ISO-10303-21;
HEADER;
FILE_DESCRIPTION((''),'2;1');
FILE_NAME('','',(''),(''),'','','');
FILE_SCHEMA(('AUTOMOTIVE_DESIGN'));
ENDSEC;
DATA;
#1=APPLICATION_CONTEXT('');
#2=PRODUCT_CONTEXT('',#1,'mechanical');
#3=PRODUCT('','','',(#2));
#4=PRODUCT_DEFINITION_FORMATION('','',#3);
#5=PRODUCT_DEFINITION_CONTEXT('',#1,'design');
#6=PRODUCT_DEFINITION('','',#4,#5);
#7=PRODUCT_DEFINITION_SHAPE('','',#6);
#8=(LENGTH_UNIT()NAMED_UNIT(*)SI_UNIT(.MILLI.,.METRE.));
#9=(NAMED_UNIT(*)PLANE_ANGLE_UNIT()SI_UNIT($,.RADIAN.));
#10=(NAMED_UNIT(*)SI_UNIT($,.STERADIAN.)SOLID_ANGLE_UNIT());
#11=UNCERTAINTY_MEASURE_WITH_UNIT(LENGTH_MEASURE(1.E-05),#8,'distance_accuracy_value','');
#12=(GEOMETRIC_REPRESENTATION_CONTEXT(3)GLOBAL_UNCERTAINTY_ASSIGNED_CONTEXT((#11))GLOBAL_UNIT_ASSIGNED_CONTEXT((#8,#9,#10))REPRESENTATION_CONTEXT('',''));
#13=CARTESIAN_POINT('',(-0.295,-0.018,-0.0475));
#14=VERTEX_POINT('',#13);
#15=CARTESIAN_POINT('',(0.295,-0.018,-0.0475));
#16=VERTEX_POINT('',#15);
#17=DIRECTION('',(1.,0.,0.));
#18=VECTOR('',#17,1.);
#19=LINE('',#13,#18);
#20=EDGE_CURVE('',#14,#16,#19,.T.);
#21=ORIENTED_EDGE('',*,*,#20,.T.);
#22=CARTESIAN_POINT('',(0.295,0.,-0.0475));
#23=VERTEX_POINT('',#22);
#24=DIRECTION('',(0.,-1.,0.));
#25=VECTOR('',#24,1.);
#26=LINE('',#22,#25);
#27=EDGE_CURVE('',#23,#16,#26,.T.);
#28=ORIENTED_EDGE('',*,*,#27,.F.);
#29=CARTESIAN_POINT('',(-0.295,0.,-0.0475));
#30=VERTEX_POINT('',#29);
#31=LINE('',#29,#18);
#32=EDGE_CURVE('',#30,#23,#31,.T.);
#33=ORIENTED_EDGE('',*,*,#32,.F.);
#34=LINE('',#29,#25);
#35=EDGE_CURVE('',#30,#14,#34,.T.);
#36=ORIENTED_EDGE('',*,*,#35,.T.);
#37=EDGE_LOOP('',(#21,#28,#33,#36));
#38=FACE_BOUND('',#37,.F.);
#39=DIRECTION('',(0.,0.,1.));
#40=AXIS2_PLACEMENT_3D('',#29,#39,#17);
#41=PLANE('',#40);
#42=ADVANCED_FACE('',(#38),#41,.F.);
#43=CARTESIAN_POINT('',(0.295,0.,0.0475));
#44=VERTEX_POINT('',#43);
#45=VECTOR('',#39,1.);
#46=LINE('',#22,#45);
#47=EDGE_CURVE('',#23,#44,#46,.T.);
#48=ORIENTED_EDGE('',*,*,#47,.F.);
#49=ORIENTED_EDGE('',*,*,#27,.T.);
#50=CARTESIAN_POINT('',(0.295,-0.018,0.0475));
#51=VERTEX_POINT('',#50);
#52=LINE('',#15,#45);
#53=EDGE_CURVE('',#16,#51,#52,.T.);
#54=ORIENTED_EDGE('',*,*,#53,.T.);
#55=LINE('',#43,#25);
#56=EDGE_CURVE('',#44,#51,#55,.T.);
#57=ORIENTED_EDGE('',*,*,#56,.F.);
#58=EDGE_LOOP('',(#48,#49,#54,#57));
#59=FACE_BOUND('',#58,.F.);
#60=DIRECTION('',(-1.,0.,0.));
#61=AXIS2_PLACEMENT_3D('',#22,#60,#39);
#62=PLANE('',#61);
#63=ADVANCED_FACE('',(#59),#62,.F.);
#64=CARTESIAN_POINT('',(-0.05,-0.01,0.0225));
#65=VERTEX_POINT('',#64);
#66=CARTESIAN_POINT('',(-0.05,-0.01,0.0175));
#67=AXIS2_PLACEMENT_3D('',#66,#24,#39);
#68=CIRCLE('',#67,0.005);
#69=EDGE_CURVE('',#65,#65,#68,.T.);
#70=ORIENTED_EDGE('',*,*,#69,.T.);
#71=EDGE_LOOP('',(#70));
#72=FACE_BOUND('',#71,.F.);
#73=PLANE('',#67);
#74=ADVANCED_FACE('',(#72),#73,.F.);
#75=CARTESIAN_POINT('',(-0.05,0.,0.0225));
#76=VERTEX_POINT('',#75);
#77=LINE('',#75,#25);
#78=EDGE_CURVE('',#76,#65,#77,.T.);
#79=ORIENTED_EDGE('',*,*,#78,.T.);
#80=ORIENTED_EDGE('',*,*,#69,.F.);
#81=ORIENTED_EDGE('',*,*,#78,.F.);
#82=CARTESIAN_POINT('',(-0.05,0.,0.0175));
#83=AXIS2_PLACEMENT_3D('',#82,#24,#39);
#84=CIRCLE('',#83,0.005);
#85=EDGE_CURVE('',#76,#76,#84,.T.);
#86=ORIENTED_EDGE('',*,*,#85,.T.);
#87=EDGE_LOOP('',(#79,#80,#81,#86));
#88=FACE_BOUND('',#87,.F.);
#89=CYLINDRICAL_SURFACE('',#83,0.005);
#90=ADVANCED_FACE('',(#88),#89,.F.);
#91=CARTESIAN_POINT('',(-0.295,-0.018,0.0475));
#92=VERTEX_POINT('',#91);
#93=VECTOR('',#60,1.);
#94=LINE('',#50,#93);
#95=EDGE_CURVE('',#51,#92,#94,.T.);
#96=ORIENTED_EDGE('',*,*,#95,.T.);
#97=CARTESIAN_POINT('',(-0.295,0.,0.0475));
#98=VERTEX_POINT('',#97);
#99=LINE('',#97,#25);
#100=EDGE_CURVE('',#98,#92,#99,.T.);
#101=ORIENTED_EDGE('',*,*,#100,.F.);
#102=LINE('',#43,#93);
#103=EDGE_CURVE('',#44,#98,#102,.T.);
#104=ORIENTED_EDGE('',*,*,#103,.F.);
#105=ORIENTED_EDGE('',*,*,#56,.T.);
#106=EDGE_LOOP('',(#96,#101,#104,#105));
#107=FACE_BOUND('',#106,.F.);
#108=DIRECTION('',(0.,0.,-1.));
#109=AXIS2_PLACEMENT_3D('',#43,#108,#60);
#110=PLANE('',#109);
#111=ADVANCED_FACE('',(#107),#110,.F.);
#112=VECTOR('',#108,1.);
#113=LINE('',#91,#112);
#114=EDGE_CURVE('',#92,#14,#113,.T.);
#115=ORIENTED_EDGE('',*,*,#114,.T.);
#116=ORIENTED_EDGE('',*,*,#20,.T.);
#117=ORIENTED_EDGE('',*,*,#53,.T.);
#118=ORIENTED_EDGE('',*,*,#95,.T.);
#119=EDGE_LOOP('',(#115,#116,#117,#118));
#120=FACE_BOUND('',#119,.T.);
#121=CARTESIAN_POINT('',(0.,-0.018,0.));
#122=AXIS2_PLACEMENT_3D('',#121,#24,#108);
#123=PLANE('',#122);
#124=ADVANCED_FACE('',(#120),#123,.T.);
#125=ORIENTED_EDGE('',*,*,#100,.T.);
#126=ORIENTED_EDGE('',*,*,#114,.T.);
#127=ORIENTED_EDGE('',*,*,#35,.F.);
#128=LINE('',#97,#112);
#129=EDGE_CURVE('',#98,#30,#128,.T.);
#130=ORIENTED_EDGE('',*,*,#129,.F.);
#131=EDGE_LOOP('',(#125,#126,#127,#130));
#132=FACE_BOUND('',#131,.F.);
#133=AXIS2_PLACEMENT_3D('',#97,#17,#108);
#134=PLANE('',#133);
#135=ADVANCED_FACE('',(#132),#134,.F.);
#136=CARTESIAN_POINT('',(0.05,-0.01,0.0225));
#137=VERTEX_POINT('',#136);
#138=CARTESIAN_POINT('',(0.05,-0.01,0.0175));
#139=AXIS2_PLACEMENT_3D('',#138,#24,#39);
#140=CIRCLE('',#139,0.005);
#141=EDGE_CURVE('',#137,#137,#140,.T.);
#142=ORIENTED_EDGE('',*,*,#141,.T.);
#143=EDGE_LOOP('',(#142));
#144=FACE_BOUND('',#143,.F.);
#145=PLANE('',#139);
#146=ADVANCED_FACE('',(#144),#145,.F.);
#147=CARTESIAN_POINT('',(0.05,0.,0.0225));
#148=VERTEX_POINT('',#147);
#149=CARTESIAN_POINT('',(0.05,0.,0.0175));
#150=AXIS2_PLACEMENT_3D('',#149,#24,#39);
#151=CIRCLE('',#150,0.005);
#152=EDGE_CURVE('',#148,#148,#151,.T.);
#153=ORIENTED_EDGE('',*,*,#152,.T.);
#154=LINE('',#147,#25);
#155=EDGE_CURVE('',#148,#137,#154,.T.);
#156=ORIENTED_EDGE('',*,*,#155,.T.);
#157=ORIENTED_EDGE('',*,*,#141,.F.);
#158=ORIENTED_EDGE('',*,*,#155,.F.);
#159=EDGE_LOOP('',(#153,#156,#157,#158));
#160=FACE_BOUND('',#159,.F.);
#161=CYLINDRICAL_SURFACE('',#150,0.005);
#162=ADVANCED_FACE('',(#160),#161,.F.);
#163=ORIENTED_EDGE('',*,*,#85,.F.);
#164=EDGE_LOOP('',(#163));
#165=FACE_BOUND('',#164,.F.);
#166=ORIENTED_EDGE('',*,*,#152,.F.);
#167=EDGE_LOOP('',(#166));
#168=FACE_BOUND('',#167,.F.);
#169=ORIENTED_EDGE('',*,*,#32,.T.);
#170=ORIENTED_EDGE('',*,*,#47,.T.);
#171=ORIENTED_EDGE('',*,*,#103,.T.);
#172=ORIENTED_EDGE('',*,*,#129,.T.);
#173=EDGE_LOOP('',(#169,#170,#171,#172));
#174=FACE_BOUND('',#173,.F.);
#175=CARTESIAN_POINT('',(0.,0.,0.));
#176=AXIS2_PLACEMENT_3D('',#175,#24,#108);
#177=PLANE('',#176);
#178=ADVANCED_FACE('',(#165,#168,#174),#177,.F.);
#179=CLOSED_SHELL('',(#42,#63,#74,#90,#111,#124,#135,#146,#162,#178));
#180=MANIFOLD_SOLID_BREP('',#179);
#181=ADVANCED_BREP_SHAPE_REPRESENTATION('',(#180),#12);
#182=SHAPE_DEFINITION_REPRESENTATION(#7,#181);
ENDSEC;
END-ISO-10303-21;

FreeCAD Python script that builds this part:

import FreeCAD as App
import Part
import Sketcher
from FreeCAD import Vector

doc = App.newDocument("Part")
params = doc.addObject("Spreadsheet::Sheet", "Params")
for row, (alias, value) in enumerate([
    ("pad1_length", "0.018 mm"),
    ("sketch2_diameter", "0.01 mm"),
    ("hole_diameter", "0.01 mm"),
    ("hole_depth", "0.01 mm"),
    ("sketch3_diameter", "0.01 mm"),
    ("hole2_diameter", "0.01 mm"),
    ("hole2_depth", "0.01 mm"),
], start=1):
    params.set(f"A{row}", alias)
    params.set(f"B{row}", "=" + value)
    params.setAlias(f"B{row}", alias)

body = doc.addObject("PartDesign::Body", "Body")

# Sketch on XZ plane
sketch1 = doc.addObject("Sketcher::SketchObject", "Sketch")
body.addObject(sketch1)
sketch1.AttachmentSupport = (doc.XZ_Plane, [""])
sketch1.MapMode = "FlatFace"
sketch1.addGeometry(Part.LineSegment(Vector(-0.29, 0.05, 0), Vector(-0.29, -0.05, 0)), False)
sketch1.addGeometry(Part.LineSegment(Vector(-0.29, -0.05, 0), Vector(0.29, -0.05, 0)), False)
sketch1.addGeometry(Part.LineSegment(Vector(0.29, -0.05, 0), Vector(0.29, 0.05, 0)), False)
sketch1.addGeometry(Part.LineSegment(Vector(0.29, 0.05, 0), Vector(-0.29, 0.05, 0)), False)
sketch1.addConstraint(Sketcher.Constraint("Coincident", 0, 2, 1, 1))
sketch1.addConstraint(Sketcher.Constraint("Coincident", 1, 2, 2, 1))
sketch1.addConstraint(Sketcher.Constraint("Coincident", 2, 2, 3, 1))
sketch1.addConstraint(Sketcher.Constraint("Coincident", 3, 2, 0, 1))
sketch1.addConstraint(Sketcher.Constraint("Vertical", 0))
sketch1.addConstraint(Sketcher.Constraint("Horizontal", 1))
sketch1.addConstraint(Sketcher.Constraint("Vertical", 2))
sketch1.addConstraint(Sketcher.Constraint("Horizontal", 3))
sketch1.addConstraint(Sketcher.Constraint("Symmetric", 0, 2, 2, 2, -1, 1))
sketch1.addConstraint(Sketcher.Constraint("DistanceX", 0, 2, -1, 1, 0.295))
sketch1.addConstraint(Sketcher.Constraint("DistanceY", 0, 2, 0, 1, 0.095))
pad1 = doc.addObject("PartDesign::Pad", "Pad")
body.addObject(pad1)
pad1.Profile = sketch1
pad1.setExpression("Length", "Params.pad1_length")

# Sketch on XZ plane
sketch2 = doc.addObject("Sketcher::SketchObject", "Sketch001")
body.addObject(sketch2)
sketch2.AttachmentSupport = (doc.XZ_Plane, [""])
sketch2.MapMode = "FlatFace"
sketch2.addGeometry(Part.Circle(Vector(0.05, 0.018, 0), Vector(0, 0, 1), 0.005), False)
sketch2.addConstraint(Sketcher.Constraint("Diameter", 0, 0.01))
sketch2.addConstraint(Sketcher.Constraint("DistanceX", -1, 1, 0, 3, 0.05))
sketch2.addConstraint(Sketcher.Constraint("DistanceY", -1, 1, 0, 3, 0.0175))
sketch2.setExpression("Constraints[0]", "Params.sketch2_diameter")
doc.recompute()
hole = doc.addObject("PartDesign::Hole", "Hole")
body.addObject(hole)
hole.Profile = sketch2
hole.ThreadType = "None"
hole.setExpression("Diameter", "Params.hole_diameter")
hole.DepthType = "Dimension"
hole.setExpression("Depth", "Params.hole_depth")
hole.DrillPoint = "Flat"
hole.Reversed = True

# Sketch on XZ plane
sketch3 = doc.addObject("Sketcher::SketchObject", "Sketch002")
body.addObject(sketch3)
sketch3.AttachmentSupport = (doc.XZ_Plane, [""])
sketch3.MapMode = "FlatFace"
sketch3.addGeometry(Part.Circle(Vector(-0.05, 0.018, 0), Vector(0, 0, 1), 0.005), False)
sketch3.addConstraint(Sketcher.Constraint("Diameter", 0, 0.01))
sketch3.addConstraint(Sketcher.Constraint("DistanceX", 0, 3, -1, 1, 0.05))
sketch3.addConstraint(Sketcher.Constraint("DistanceY", -1, 1, 0, 3, 0.0175))
sketch3.setExpression("Constraints[0]", "Params.sketch3_diameter")
doc.recompute()
hole2 = doc.addObject("PartDesign::Hole", "Hole001")
body.addObject(hole2)
hole2.Profile = sketch3
hole2.ThreadType = "None"
hole2.setExpression("Diameter", "Params.hole2_diameter")
hole2.DepthType = "Dimension"
hole2.setExpression("Depth", "Params.hole2_depth")
hole2.DrillPoint = "Flat"
hole2.Reversed = True

doc.recompute()
